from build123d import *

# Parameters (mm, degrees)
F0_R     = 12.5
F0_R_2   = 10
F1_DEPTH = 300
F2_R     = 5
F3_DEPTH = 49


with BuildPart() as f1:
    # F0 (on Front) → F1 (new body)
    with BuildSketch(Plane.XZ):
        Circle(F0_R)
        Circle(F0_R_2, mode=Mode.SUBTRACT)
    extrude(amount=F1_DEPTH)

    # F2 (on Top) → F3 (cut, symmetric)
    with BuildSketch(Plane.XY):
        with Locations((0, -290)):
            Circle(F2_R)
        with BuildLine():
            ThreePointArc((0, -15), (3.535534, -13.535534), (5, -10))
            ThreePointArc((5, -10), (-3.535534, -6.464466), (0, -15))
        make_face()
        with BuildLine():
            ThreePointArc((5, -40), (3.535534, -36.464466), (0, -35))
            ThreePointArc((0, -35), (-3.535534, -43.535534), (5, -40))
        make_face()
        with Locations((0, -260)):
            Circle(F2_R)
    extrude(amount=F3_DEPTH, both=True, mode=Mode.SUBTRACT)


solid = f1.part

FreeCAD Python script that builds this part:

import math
import FreeCAD as App
import Part
import Sketcher

V = App.Vector
Q = App.Units.Quantity

doc = App.newDocument("Part")
params = doc.addObject("Spreadsheet::Sheet", "Params")
for row, (alias, value) in enumerate([
    ("sketch1_diameter", "25 mm"),
    ("sketch1_diameter2", "20 mm"),
    ("pad1_length", "300 mm"),
    ("sketch2_diameter", "10 mm"),
    ("pocket1_length", "98 mm"),
], start=1):
    params.set(f"A{row}", alias)
    params.set(f"B{row}", "=" + value)
    params.setAlias(f"B{row}", alias)

body = doc.addObject("PartDesign::Body", "Body")

sketch1 = body.newObject("Sketcher::SketchObject", "Sketch")
sketch1.AttachmentSupport = (doc.getObject("XZ_Plane"), [""])
sketch1.MapMode = "FlatFace"
sketch1.addGeometry(Part.Circle(V(0, 0, 0), V(0, 0, 1), 12.5), False)
sketch1.addGeometry(Part.Circle(V(0, 0, 0), V(0, 0, 1), 10), False)
sketch1.addConstraint(Sketcher.Constraint("Coincident", 0, 3, -1, 1))
sketch1.addConstraint(Sketcher.Constraint("Coincident", 1, 3, -1, 1))
sketch1.addConstraint(Sketcher.Constraint("Diameter", 0, Q("25 mm")))
sketch1.addConstraint(Sketcher.Constraint("Diameter", 1, Q("20 mm")))
sketch1.setExpression("Constraints[2]", "Params.sketch1_diameter")
sketch1.setExpression("Constraints[3]", "Params.sketch1_diameter2")
pad1 = body.newObject("PartDesign::Pad", "Pad")
pad1.Profile = sketch1
pad1.setExpression("Length", "Params.pad1_length")

sketch2 = body.newObject("Sketcher::SketchObject", "Sketch001")
sketch2.AttachmentSupport = (doc.getObject("XY_Plane"), [""])
sketch2.MapMode = "FlatFace"
sketch2.addGeometry(Part.Circle(V(0, -290, 0), V(0, 0, 1), 5), False)
sketch2.addGeometry(Part.ArcOfCircle(Part.Circle(V(0, -10, 0), V(0, 0, 1), 5), math.radians(-90.000004), math.radians(0.000004)), False)
sketch2.addGeometry(Part.ArcOfCircle(Part.Circle(V(0, -10, 0), V(0, 0, 1), 5), math.radians(-0.000001), math.radians(270.000001)), False)
sketch2.addGeometry(Part.ArcOfCircle(Part.Circle(V(0, -40, 0), V(0, 0, 1), 5), math.radians(-0.000004), math.radians(90.000004)), False)
sketch2.addGeometry(Part.ArcOfCircle(Part.Circle(V(0, -40, 0), V(0, 0, 1), 5), math.radians(89.999999), math.radians(360.000001)), False)
sketch2.addGeometry(Part.Circle(V(0, -260, 0), V(0, 0, 1), 5), False)
sketch2.addConstraint(Sketcher.Constraint("Tangent", 1, 1, 2, 2))
sketch2.addConstraint(Sketcher.Constraint("Coincident", 2, 1, 1, 2))
sketch2.addConstraint(Sketcher.Constraint("Tangent", 3, 1, 4, 2))
sketch2.addConstraint(Sketcher.Constraint("Coincident", 4, 1, 3, 2))
sketch2.addConstraint(Sketcher.Constraint("Equal", 0, 1))
sketch2.addConstraint(Sketcher.Constraint("Equal", 2, 3))
sketch2.addConstraint(Sketcher.Constraint("Equal", 4, 5))
sketch2.addConstraint(Sketcher.Constraint("PointOnObject", 0, 3, -2))
sketch2.addConstraint(Sketcher.Constraint("PointOnObject", 1, 3, -2))
sketch2.addConstraint(Sketcher.Constraint("PointOnObject", 3, 3, -2))
sketch2.addConstraint(Sketcher.Constraint("PointOnObject", 5, 3, -2))
sketch2.addConstraint(Sketcher.Constraint("PointOnObject", 1, 1, -2))
sketch2.addConstraint(Sketcher.Constraint("PointOnObject", 4, 1, -2))
sketch2.addConstraint(Sketcher.Constraint("Horizontal", 1, 3, 2, 1))
sketch2.addConstraint(Sketcher.Constraint("Horizontal", 4, 3, 3, 1))
sketch2.addConstraint(Sketcher.Constraint("Diameter", 0, Q("10 mm")))
sketch2.addConstraint(Sketcher.Constraint("DistanceY", 0, 3, -1, 1, Q("290 mm")))
sketch2.addConstraint(Sketcher.Constraint("DistanceY", 1, 3, -1, 1, Q("10 mm")))
sketch2.addConstraint(Sketcher.Constraint("DistanceY", 3, 3, -1, 1, Q("40 mm")))
sketch2.addConstraint(Sketcher.Constraint("DistanceY", 5, 3, -1, 1, Q("260 mm")))
sketch2.setExpression("Constraints[15]", "Params.sketch2_diameter")
pocket1 = body.newObject("PartDesign::Pocket", "Pocket")
pocket1.Profile = sketch2
pocket1.setExpression("Length", "Params.pocket1_length")
pocket1.Midplane = True

doc.recompute()
